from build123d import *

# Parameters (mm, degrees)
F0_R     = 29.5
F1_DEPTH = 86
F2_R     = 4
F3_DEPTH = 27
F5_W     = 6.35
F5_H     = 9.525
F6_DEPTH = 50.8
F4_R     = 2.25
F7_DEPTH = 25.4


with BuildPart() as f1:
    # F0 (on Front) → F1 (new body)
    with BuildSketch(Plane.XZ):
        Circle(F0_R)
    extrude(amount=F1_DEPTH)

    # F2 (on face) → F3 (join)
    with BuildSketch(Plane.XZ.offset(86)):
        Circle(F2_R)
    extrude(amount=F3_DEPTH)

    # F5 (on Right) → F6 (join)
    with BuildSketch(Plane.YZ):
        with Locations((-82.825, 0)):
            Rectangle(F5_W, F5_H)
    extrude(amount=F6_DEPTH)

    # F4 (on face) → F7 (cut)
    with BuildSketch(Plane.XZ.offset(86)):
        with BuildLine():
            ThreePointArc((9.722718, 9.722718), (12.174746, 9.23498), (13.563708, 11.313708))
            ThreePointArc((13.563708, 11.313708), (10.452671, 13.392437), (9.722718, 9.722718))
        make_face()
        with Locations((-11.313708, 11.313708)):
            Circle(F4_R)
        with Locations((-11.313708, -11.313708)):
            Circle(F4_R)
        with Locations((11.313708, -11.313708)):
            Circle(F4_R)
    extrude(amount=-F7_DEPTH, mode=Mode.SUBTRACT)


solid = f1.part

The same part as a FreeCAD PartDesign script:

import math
import FreeCAD as App
import Part
import Sketcher
Q = App.Units.Quantity

doc = App.newDocument("Part")
params = doc.addObject("Spreadsheet::Sheet", "Params")
for row, (alias, value) in enumerate([
    ("sketch1_diameter", "59 mm"),
    ("pad1_length", "86 mm"),
    ("sketch2_diameter", "8 mm"),
    ("pad2_length", "27 mm"),
    ("sketch3_width", "6.35 mm"),
    ("pad3_length", "50.8 mm"),
    ("sketch4_diameter", "4.5 mm"),
    ("pocket1_length", "25.4 mm"),
], start=1):
    params.set(f"A{row}", alias)
    params.set(f"B{row}", "=" + value)
    params.setAlias(f"B{row}", alias)

body = doc.addObject("PartDesign::Body", "Body")

# Sketch on XZ plane
sketch1 = body.newObject("Sketcher::SketchObject", "Sketch")
sketch1.AttachmentSupport = (doc.getObject("XZ_Plane"), [""])
sketch1.MapMode = "FlatFace"
sketch1.addGeometry(Part.Circle(App.Vector(0, 0, 0), App.Vector(0, 0, 1), 30), False)
sketch1.addConstraint(Sketcher.Constraint("Coincident", 0, 3, -1, 1))
sketch1.addConstraint(Sketcher.Constraint("Diameter", 0, Q("59 mm")))
sketch1.setExpression("Constraints[1]", "Params.sketch1_diameter")
pad1 = body.newObject("PartDesign::Pad", "Pad")
pad1.Profile = sketch1
pad1.setExpression("Length", "Params.pad1_length")

# Sketch on XZ plane
sketch2 = body.newObject("Sketcher::SketchObject", "Sketch001")
sketch2.AttachmentSupport = (doc.getObject("XZ_Plane"), [""])
sketch2.MapMode = "FlatFace"
sketch2.AttachmentOffset = App.Placement(App.Vector(0, 0, 86), App.Rotation())
sketch2.addGeometry(Part.Circle(App.Vector(0, 0, 0), App.Vector(0, 0, 1), 4), False)
sketch2.addConstraint(Sketcher.Constraint("Coincident", 0, 3, -1, 1))
sketch2.addConstraint(Sketcher.Constraint("Diameter", 0, Q("8 mm")))
sketch2.setExpression("Constraints[1]", "Params.sketch2_diameter")
pad2 = body.newObject("PartDesign::Pad", "Pad001")
pad2.Profile = sketch2
pad2.setExpression("Length", "Params.pad2_length")

# Sketch on YZ plane
sketch3 = body.newObject("Sketcher::SketchObject", "Sketch002")
sketch3.AttachmentSupport = (doc.getObject("YZ_Plane"), [""])
sketch3.MapMode = "FlatFace"
sketch3.addGeometry(Part.LineSegment(App.Vector(-86, 5, 0), App.Vector(-86, -5, 0)), False)
sketch3.addGeometry(Part.LineSegment(App.Vector(-86, -5, 0), App.Vector(-80, -5, 0)), False)
sketch3.addGeometry(Part.LineSegment(App.Vector(-80, -5, 0), App.Vector(-80, 5, 0)), False)
sketch3.addGeometry(Part.LineSegment(App.Vector(-80, 5, 0), App.Vector(-86, 5, 0)), False)
sketch3.addConstraint(Sketcher.Constraint("Coincident", 0, 2, 1, 1))
sketch3.addConstraint(Sketcher.Constraint("Coincident", 1, 2, 2, 1))
sketch3.addConstraint(Sketcher.Constraint("Coincident", 2, 2, 3, 1))
sketch3.addConstraint(Sketcher.Constraint("Coincident", 3, 2, 0, 1))
sketch3.addConstraint(Sketcher.Constraint("Vertical", 0))
sketch3.addConstraint(Sketcher.Constraint("Horizontal", 1))
sketch3.addConstraint(Sketcher.Constraint("Vertical", 2))
sketch3.addConstraint(Sketcher.Constraint("Horizontal", 3))
sketch3.addConstraint(Sketcher.Constraint("DistanceX", 0, 2, -1, 1, Q("86 mm")))
sketch3.addConstraint(Sketcher.Constraint("DistanceX", 1, 1, 1, 2, Q("6.35 mm")))
sketch3.addConstraint(Sketcher.Constraint("DistanceY", 0, 2, 0, 1, Q("9.525 mm")))
sketch3.addConstraint(Sketcher.Constraint("DistanceY", 0, 2, -1, 1, Q("4.7625 mm")))
sketch3.setExpression("Constraints[9]", "Params.sketch3_width")
pad3 = body.newObject("PartDesign::Pad", "Pad002")
pad3.Profile = sketch3
pad3.setExpression("Length", "Params.pad3_length")

# Sketch on XZ plane
sketch4 = body.newObject("Sketcher::SketchObject", "Sketch003")
sketch4.AttachmentSupport = (doc.getObject("XZ_Plane"), [""])
sketch4.MapMode = "FlatFace"
sketch4.AttachmentOffset = App.Placement(App.Vector(0, 0, 86), App.Rotation())
sketch4.addGeometry(Part.ArcOfCircle(Part.Circle(App.Vector(11.3, 11.3, 0), App.Vector(0, 0, 1), 2.3), math.radians(-135), math.radians(0)), False)
sketch4.addGeometry(Part.ArcOfCircle(Part.Circle(App.Vector(11.3, 11.3, 0), App.Vector(0, 0, 1), 2.2), math.radians(0), math.radians(225)), False)
sketch4.addGeometry(Part.Circle(App.Vector(-11.3, 11.3, 0), App.Vector(0, 0, 1), 2.2), False)
sketch4.addGeometry(Part.Circle(App.Vector(-11.3, -11.3, 0), App.Vector(0, 0, 1), 2.2), False)
sketch4.addGeometry(Part.Circle(App.Vector(11.3, -11.3, 0), App.Vector(0, 0, 1), 2.2), False)
sketch4.addConstraint(Sketcher.Constraint("Tangent", 0, 1, 1, 2))
sketch4.addConstraint(Sketcher.Constraint("Coincident", 1, 1, 0, 2))
sketch4.addConstraint(Sketcher.Constraint("Equal", 1, 2))
sketch4.addConstraint(Sketcher.Constraint("Equal", 2, 3))
sketch4.addConstraint(Sketcher.Constraint("Equal", 3, 4))
sketch4.addConstraint(Sketcher.Constraint("Symmetric", 0, 3, 3, 3, -1, 1))
sketch4.addConstraint(Sketcher.Constraint("Symmetric", 2, 3, 4, 3, -1, 1))
sketch4.addConstraint(Sketcher.Constraint("Symmetric", 0, 3, 2, 3, -2))
sketch4.addConstraint(Sketcher.Constraint("Horizontal", 2, 3, 1, 1))
sketch4.addConstraint(Sketcher.Constraint("Diameter", 2, Q("4.5 mm")))
sketch4.addConstraint(Sketcher.Constraint("DistanceY", -1, 1, 0, 3, Q("11.313709 mm")))
sketch4.addConstraint(Sketcher.Constraint("DistanceX", -1, 1, 1, 3, Q("11.313708 mm")))
sketch4.addConstraint(Sketcher.Constraint("DistanceX", -1, 1, 0, 1, Q("9.722718 mm")))
sketch4.setExpression("Constraints[9]", "Params.sketch4_diameter")
pocket1 = body.newObject("PartDesign::Pocket", "Pocket")
pocket1.Profile = sketch4
pocket1.setExpression("Length", "Params.pocket1_length")

doc.recompute()
